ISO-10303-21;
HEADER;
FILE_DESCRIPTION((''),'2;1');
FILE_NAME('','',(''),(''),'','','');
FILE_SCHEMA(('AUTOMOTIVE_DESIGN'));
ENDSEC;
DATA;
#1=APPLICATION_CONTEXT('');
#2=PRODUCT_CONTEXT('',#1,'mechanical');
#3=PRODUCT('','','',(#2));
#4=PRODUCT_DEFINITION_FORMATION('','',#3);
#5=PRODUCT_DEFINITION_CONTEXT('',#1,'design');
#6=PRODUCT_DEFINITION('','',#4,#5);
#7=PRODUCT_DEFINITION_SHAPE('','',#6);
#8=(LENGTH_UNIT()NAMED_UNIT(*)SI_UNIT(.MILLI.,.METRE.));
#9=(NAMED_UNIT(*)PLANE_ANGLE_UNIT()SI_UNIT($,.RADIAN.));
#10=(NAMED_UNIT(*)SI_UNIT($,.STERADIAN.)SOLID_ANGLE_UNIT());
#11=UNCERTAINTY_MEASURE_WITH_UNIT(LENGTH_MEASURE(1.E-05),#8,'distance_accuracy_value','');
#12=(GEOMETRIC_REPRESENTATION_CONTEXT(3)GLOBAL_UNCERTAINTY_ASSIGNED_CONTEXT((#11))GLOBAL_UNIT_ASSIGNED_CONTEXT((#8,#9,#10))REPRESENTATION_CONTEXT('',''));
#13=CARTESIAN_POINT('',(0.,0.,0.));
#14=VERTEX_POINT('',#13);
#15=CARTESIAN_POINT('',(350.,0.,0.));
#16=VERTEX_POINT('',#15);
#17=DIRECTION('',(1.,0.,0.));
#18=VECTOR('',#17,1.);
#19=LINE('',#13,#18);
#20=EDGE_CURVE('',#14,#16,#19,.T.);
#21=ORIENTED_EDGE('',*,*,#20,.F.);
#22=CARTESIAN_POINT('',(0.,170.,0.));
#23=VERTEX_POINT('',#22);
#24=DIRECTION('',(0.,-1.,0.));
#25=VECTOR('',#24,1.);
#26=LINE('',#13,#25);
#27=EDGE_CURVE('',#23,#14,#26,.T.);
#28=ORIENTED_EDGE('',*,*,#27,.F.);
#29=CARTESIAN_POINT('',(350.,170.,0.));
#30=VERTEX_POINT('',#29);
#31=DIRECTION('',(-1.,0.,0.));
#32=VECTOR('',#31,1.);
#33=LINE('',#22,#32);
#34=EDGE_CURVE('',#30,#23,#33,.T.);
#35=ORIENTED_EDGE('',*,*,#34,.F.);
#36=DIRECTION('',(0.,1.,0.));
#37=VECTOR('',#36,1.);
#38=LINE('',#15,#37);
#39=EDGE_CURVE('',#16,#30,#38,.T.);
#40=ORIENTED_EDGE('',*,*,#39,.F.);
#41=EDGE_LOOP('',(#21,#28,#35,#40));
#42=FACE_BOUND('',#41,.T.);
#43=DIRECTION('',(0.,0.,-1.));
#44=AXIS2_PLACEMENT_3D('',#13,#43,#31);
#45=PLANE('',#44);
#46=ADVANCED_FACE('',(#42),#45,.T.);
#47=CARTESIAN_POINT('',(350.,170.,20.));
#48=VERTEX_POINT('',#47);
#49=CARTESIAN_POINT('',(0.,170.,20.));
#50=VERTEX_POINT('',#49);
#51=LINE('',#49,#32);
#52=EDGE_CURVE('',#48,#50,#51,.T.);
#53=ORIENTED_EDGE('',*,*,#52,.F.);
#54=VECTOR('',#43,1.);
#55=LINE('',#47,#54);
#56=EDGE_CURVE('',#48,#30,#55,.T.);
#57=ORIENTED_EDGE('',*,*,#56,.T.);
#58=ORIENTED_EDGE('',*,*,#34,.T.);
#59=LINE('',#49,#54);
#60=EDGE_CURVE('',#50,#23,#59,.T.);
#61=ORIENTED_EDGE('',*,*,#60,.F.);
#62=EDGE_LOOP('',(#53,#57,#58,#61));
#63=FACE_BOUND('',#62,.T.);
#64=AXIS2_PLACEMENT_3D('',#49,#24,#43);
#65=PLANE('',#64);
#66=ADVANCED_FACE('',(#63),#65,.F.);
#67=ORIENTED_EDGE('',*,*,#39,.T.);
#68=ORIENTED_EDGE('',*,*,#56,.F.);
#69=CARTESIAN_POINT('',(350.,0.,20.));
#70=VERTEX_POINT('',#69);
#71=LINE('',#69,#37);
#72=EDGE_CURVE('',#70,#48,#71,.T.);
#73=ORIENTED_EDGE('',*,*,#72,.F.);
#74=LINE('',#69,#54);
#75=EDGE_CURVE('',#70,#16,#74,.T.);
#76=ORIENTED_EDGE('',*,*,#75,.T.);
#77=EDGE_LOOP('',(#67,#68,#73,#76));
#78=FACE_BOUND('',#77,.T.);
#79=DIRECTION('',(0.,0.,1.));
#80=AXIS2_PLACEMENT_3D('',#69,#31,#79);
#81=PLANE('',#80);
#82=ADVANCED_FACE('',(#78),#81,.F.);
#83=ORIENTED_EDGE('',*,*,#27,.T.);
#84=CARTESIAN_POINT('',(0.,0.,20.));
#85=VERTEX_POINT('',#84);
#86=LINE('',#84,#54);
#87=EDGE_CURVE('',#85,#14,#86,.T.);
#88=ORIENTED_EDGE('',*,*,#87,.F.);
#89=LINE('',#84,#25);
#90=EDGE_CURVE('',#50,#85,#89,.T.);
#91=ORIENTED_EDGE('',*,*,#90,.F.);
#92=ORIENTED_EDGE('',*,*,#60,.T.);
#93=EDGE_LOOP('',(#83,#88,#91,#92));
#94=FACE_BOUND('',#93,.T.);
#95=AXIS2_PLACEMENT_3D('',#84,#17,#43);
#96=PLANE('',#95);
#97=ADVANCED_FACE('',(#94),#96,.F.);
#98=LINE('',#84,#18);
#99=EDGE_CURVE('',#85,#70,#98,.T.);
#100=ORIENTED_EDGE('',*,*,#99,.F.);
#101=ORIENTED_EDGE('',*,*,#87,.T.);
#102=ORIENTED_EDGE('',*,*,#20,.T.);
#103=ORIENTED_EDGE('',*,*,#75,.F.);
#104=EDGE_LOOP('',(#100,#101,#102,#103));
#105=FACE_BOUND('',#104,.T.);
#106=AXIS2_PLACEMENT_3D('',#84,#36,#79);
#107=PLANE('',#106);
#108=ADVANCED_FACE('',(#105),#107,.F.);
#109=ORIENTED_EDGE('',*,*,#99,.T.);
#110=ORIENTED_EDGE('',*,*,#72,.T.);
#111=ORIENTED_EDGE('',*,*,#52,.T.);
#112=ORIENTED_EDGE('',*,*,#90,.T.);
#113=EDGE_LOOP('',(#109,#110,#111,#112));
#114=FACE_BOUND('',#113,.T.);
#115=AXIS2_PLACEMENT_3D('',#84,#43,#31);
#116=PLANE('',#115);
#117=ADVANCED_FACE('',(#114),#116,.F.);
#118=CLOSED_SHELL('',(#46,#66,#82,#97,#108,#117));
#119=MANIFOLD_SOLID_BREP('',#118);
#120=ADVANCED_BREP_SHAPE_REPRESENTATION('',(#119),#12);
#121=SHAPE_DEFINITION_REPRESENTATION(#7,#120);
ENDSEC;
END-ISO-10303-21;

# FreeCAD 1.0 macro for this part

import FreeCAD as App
import Part
import Sketcher

doc = App.newDocument("Part")
body = doc.addObject("PartDesign::Body", "Body")

# Sketch on XY plane
sketch1 = doc.addObject("Sketcher::SketchObject", "Sketch")
body.addObject(sketch1)
sketch1.AttachmentSupport = (doc.XY_Plane, [""])
sketch1.MapMode = "FlatFace"
sketch1.addGeometry([
    Part.LineSegment(App.Vector(0, 170, 0), App.Vector(0, 0, 0)),
    Part.LineSegment(App.Vector(0, 0, 0), App.Vector(350, 0, 0)),
    Part.LineSegment(App.Vector(350, 0, 0), App.Vector(350, 170, 0)),
    Part.LineSegment(App.Vector(350, 170, 0), App.Vector(0, 170, 0)),
], False)
sketch1.addConstraint([
    Sketcher.Constraint("Coincident", 0, 2, 1, 1),
    Sketcher.Constraint("Coincident", 1, 2, 2, 1),
    Sketcher.Constraint("Coincident", 2, 2, 3, 1),
    Sketcher.Constraint("Coincident", 3, 2, 0, 1),
    Sketcher.Constraint("Vertical", 0),
    Sketcher.Constraint("Horizontal", 1),
    Sketcher.Constraint("Vertical", 2),
    Sketcher.Constraint("Horizontal", 3),
    Sketcher.Constraint("Coincident", 0, 2, -1, 1),
    Sketcher.Constraint("DistanceX", 1, 1, 1, 2, 350.0),
    Sketcher.Constraint("DistanceY", 0, 2, 0, 1, 170.0),
])
pad1 = doc.addObject("PartDesign::Pad", "Pad")
body.addObject(pad1)
pad1.Profile = sketch1
pad1.Length = 20

doc.recompute()
